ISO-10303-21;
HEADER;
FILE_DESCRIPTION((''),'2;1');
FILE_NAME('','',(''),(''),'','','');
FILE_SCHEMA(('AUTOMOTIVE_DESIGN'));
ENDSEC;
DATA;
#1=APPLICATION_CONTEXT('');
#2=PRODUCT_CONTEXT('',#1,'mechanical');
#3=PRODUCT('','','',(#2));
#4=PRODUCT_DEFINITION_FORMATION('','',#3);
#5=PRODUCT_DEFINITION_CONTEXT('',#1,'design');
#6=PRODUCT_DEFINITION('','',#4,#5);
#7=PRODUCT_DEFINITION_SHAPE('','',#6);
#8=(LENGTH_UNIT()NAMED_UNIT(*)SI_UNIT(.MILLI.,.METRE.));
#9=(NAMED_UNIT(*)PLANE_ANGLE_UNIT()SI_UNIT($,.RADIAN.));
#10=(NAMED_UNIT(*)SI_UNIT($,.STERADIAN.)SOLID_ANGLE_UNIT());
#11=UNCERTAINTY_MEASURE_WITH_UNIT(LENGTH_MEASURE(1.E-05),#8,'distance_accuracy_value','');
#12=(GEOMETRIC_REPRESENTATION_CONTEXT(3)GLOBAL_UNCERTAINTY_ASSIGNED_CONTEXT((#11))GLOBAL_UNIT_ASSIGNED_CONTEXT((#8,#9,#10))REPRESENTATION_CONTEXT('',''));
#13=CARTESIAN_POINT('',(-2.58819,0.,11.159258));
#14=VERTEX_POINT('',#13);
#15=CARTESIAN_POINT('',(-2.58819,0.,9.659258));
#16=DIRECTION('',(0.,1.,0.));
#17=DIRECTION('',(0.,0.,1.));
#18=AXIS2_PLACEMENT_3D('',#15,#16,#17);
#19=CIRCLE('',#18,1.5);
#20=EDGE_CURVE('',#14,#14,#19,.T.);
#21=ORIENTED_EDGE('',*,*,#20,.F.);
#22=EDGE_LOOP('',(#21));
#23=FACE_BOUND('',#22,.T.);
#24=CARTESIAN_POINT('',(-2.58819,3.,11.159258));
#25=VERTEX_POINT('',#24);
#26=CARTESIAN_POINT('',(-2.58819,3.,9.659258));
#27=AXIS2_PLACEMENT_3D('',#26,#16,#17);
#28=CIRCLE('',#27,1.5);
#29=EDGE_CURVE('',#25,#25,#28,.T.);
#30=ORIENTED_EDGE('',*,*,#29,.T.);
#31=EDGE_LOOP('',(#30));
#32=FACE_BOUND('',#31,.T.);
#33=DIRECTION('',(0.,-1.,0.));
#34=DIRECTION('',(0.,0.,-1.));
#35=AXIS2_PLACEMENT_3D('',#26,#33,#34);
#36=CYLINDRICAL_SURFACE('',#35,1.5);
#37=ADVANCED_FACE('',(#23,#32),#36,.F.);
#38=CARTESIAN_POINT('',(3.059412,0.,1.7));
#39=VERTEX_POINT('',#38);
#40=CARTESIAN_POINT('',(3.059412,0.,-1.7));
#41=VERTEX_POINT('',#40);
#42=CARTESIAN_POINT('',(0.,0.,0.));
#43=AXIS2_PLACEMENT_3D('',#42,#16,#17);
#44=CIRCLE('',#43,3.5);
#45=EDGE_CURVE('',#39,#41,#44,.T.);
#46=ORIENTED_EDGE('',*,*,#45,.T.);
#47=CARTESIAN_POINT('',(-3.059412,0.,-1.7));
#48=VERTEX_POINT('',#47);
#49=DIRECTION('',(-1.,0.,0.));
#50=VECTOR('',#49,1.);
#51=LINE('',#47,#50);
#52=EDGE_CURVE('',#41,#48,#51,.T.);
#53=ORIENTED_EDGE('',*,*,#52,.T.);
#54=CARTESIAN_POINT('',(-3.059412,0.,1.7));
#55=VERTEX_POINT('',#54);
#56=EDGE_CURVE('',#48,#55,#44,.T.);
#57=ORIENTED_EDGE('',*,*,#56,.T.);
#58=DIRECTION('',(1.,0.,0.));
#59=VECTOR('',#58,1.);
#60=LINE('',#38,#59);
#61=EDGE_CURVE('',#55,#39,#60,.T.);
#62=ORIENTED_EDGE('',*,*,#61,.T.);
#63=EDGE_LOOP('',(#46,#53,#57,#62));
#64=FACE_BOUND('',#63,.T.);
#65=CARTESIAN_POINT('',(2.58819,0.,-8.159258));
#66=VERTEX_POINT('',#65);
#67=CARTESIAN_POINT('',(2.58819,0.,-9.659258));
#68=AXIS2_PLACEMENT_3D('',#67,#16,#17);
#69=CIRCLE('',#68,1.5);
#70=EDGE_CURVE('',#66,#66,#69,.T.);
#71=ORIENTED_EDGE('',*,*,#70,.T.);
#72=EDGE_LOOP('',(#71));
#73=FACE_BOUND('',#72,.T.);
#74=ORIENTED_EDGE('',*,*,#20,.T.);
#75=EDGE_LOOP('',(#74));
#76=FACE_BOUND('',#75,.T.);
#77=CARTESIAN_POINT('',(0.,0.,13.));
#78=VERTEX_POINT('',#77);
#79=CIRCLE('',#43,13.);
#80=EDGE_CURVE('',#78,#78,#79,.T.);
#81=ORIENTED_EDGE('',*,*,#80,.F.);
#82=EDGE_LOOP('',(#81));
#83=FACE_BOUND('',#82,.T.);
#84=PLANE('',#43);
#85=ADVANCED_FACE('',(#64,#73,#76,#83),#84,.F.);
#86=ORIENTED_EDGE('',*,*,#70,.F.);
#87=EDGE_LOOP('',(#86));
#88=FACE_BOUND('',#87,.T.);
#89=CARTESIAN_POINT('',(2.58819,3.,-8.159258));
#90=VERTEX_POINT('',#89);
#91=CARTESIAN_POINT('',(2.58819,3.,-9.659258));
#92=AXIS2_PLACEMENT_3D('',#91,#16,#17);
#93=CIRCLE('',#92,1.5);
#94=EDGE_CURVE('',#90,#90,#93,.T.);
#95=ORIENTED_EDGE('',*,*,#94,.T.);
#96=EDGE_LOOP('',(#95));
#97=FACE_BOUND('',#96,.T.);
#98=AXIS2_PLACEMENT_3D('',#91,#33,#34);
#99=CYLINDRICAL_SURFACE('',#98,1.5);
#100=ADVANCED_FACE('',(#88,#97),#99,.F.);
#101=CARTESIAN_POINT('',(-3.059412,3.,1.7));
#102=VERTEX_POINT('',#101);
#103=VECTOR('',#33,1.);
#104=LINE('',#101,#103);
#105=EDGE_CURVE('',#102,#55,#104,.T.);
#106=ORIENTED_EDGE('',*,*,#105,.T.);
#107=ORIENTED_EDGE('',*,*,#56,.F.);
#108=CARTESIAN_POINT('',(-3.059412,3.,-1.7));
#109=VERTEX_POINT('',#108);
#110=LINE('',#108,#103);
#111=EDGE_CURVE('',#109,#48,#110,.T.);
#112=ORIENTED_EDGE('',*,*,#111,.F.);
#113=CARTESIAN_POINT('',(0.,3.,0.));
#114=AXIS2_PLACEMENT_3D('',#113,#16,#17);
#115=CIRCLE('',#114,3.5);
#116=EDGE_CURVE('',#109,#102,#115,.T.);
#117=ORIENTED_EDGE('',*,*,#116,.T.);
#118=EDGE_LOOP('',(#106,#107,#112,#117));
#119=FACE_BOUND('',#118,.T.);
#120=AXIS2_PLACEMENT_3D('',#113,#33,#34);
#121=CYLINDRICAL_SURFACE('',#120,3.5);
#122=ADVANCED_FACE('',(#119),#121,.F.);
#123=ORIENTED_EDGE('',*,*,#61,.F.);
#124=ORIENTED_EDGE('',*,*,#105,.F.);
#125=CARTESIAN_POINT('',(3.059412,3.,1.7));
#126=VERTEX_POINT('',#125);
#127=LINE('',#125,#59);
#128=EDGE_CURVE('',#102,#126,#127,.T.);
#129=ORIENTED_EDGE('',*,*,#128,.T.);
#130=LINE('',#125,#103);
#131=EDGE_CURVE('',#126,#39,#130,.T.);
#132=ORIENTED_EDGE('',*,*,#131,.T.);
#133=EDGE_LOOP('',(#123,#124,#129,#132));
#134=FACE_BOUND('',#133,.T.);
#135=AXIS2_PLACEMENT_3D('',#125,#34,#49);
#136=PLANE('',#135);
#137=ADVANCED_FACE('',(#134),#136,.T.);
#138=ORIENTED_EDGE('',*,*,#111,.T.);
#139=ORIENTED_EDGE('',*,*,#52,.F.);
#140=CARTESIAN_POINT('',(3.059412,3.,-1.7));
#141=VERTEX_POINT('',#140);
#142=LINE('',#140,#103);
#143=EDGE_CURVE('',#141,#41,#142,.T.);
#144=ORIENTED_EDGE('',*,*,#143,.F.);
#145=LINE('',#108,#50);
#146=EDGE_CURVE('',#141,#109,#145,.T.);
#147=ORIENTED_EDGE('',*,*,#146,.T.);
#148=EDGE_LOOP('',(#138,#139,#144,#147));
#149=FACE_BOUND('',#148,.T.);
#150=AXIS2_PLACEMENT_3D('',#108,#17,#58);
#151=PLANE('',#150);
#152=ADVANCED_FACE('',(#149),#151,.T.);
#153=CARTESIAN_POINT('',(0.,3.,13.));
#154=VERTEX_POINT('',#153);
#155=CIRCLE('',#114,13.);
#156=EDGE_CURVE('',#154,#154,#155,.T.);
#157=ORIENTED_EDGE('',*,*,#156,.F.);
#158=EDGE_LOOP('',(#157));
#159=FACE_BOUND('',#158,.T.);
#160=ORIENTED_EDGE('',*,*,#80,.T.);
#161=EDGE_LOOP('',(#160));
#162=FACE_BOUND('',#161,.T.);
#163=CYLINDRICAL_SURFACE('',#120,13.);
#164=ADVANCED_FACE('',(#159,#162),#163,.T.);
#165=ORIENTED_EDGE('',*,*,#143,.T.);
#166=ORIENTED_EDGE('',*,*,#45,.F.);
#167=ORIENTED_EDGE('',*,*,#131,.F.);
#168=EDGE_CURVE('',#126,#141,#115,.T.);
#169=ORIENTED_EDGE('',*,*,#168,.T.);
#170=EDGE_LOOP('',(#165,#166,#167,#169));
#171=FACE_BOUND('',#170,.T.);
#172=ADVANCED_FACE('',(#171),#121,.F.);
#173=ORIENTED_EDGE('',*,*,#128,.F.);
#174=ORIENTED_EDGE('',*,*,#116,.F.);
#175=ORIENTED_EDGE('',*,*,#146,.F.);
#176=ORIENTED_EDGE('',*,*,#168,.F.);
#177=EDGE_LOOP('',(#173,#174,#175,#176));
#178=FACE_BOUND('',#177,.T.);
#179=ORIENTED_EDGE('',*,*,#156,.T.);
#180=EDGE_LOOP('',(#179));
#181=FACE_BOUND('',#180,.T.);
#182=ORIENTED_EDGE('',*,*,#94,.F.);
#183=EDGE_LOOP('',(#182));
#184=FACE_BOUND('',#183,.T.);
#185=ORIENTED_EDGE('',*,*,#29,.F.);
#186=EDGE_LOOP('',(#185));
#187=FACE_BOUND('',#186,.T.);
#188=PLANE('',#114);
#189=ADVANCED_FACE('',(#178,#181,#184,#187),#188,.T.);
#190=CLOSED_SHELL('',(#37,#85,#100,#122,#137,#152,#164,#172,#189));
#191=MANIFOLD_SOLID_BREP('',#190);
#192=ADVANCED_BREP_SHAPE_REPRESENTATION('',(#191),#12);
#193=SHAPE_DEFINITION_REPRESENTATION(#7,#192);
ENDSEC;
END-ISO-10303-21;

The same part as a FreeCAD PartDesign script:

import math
import FreeCAD as App
import Part
import Sketcher

V = App.Vector

doc = App.newDocument("Part")
body = doc.addObject("PartDesign::Body", "Body")

# Sketch on XZ plane
sketch1 = body.newObject("Sketcher::SketchObject", "Sketch")
sketch1.AttachmentSupport = (doc.getObject("XZ_Plane"), [""])
sketch1.MapMode = "FlatFace"
sketch1.addGeometry([
    Part.Circle(V(0, 0, 0), V(0, 0, 1), 13),  # 0
    Part.Circle(V(-2.6, 9.7, 0), V(0, 0, 1), 1.5),  # 1
    Part.ArcOfCircle(Part.Circle(V(0, 0, 0), V(0, 0, 1), 3.5), math.radians(151), math.radians(209)),  # 2
    Part.LineSegment(V(-3.1, -1.7, 0), V(3.1, -1.7, 0)),  # 3
    Part.ArcOfCircle(Part.Circle(V(0, 0, 0), V(0, 0, 1), 3.5), math.radians(-29), math.radians(29)),  # 4
    Part.LineSegment(V(3.1, 1.7, 0), V(-3.1, 1.7, 0)),  # 5
    Part.Circle(V(2.6, -9.7, 0), V(0, 0, 1), 1.5),  # 6
], False)
sketch1.addConstraint([
    Sketcher.Constraint("Coincident", 2, 2, 3, 1),
    Sketcher.Constraint("Coincident", 3, 2, 4, 1),
    Sketcher.Constraint("Coincident", 4, 2, 5, 1),
    Sketcher.Constraint("Coincident", 5, 2, 2, 1),
    Sketcher.Constraint("Horizontal", 3),
    Sketcher.Constraint("Horizontal", 5),
    Sketcher.Constraint("Coincident", 0, 3, -1, 1),
    Sketcher.Constraint("Coincident", 2, 3, -1, 1),
    Sketcher.Constraint("Coincident", 4, 3, -1, 1),
    Sketcher.Constraint("Equal", 2, 4),
    Sketcher.Constraint("Equal", 1, 6),
    Sketcher.Constraint("Symmetric", 1, 3, 6, 3, -1, 1),
    Sketcher.Constraint("Vertical", 3, 2, 4, 2),
    Sketcher.Constraint("Diameter", 0, 26.0),
    Sketcher.Constraint("Diameter", 1, 3.0),
    Sketcher.Constraint("Radius", 2, 3.5),
    Sketcher.Constraint("DistanceY", 2, 2, -1, 1, 1.7),
    Sketcher.Constraint("DistanceX", 1, 3, -1, 1, 2.58819),
    Sketcher.Constraint("DistanceY", -1, 1, 1, 3, 9.659258),
])
pad1 = body.newObject("PartDesign::Pad", "Pad")
pad1.Profile = sketch1
pad1.Length = 3
pad1.Reversed = True

doc.recompute()
